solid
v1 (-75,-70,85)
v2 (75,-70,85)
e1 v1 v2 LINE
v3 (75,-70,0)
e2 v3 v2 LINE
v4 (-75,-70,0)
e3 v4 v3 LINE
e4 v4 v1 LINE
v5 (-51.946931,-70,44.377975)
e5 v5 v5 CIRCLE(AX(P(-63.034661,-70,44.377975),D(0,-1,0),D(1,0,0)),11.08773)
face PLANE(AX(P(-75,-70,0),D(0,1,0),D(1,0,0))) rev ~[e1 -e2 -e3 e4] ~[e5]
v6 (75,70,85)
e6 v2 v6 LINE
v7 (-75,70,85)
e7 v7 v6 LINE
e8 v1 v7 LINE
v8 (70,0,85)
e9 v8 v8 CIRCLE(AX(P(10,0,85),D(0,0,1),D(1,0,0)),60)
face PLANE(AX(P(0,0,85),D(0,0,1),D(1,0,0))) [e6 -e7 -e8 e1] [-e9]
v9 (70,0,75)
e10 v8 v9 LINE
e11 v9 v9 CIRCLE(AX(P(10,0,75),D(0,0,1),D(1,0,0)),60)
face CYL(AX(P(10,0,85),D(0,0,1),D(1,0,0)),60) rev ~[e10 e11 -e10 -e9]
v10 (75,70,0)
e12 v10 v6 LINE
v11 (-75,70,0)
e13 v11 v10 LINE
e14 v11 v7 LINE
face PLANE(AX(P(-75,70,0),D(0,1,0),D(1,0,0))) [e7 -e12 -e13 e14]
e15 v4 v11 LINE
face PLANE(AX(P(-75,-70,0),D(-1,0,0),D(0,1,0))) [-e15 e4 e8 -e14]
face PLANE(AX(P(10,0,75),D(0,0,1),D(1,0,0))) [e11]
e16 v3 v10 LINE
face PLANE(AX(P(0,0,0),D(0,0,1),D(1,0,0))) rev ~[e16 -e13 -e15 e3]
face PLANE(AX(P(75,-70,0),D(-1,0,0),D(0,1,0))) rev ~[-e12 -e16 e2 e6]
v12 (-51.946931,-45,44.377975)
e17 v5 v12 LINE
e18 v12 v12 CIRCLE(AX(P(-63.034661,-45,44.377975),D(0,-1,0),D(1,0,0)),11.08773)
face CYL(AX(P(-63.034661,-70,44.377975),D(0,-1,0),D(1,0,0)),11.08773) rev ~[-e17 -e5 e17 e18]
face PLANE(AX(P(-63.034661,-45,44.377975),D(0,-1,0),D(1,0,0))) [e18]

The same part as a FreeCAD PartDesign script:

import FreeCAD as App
import Part
import Sketcher

doc = App.newDocument("Part")
body = doc.addObject("PartDesign::Body", "Body")

sketch1 = body.newObject("Sketcher::SketchObject", "Sketch")
sketch1.AttachmentSupport = (doc.getObject("XY_Plane"), [""])
sketch1.MapMode = "FlatFace"
sketch1.addGeometry([
    Part.LineSegment(App.Vector(-75, 70, 0), App.Vector(-75, -70, 0)),
    Part.LineSegment(App.Vector(-75, -70, 0), App.Vector(75, -70, 0)),
    Part.LineSegment(App.Vector(75, -70, 0), App.Vector(75, 70, 0)),
    Part.LineSegment(App.Vector(75, 70, 0), App.Vector(-75, 70, 0)),
], False)
sketch1.addConstraint([
    Sketcher.Constraint("Coincident", 0, 2, 1, 1),
    Sketcher.Constraint("Coincident", 1, 2, 2, 1),
    Sketcher.Constraint("Coincident", 2, 2, 3, 1),
    Sketcher.Constraint("Coincident", 3, 2, 0, 1),
    Sketcher.Constraint("Vertical", 0),
    Sketcher.Constraint("Horizontal", 1),
    Sketcher.Constraint("Vertical", 2),
    Sketcher.Constraint("Horizontal", 3),
    Sketcher.Constraint("Symmetric", 0, 2, 2, 2, -1, 1),
    Sketcher.Constraint("DistanceX", 1, 1, 1, 2, 150.0),
    Sketcher.Constraint("DistanceY", 0, 2, 0, 1, 140.0),
])
pad1 = body.newObject("PartDesign::Pad", "Pad")
pad1.Profile = sketch1
pad1.Length = 85

sketch2 = body.newObject("Sketcher::SketchObject", "Sketch001")
sketch2.AttachmentSupport = (doc.getObject("XZ_Plane"), [""])
sketch2.MapMode = "FlatFace"
sketch2.AttachmentOffset = App.Placement(App.Vector(0, 0, 70), App.Rotation())
sketch2.addGeometry(Part.Circle(App.Vector(-63.034661, 44.377975, 0), App.Vector(0, 0, 1), 11.08773), False)
sketch2.addConstraint([
    Sketcher.Constraint("Diameter", 0, 22.17546),
    Sketcher.Constraint("DistanceX", 0, 3, -1, 1, 63.034661),
    Sketcher.Constraint("DistanceY", -1, 1, 0, 3, 44.377975),
])
pocket1 = body.newObject("PartDesign::Pocket", "Pocket")
pocket1.Profile = sketch2
pocket1.Length = 25

sketch3 = body.newObject("Sketcher::SketchObject", "Sketch002")
sketch3.AttachmentSupport = (doc.getObject("XY_Plane"), [""])
sketch3.MapMode = "FlatFace"
sketch3.AttachmentOffset = App.Placement(App.Vector(0, 0, 85), App.Rotation())
sketch3.addGeometry(Part.Circle(App.Vector(10, 0, 0), App.Vector(0, 0, 1), 60), False)
sketch3.addConstraint([
    Sketcher.Constraint("PointOnObject", 0, 3, -1),
    Sketcher.Constraint("Diameter", 0, 120.0),
    Sketcher.Constraint("DistanceX", -1, 1, 0, 3, 10.0),
])
pocket2 = body.newObject("PartDesign::Pocket", "Pocket001")
pocket2.Profile = sketch3
pocket2.Length = 10

doc.recompute()
